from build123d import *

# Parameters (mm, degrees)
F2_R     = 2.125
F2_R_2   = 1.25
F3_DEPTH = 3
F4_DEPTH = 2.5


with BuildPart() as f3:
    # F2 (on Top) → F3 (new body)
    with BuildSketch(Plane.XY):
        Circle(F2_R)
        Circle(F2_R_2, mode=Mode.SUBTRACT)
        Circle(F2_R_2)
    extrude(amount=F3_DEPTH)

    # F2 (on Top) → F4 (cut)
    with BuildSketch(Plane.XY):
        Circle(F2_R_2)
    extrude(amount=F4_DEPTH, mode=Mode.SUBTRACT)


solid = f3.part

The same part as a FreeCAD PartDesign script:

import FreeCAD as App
import Part
import Sketcher
from FreeCAD import Vector
Q = App.Units.Quantity

doc = App.newDocument("Part")
body = doc.addObject("PartDesign::Body", "Body")

sketch1 = body.newObject("Sketcher::SketchObject", "Sketch")
sketch1.AttachmentSupport = (doc.getObject("XY_Plane"), [""])
sketch1.MapMode = "FlatFace"
sketch1.addGeometry(Part.Circle(Vector(0, 0, 0), Vector(0, 0, 1), 2.1), False)
sketch1.addConstraint(Sketcher.Constraint("Coincident", 0, 3, -1, 1))
sketch1.addConstraint(Sketcher.Constraint("Diameter", 0, Q("4.25 mm")))
pad1 = body.newObject("PartDesign::Pad", "Pad")
pad1.Profile = sketch1
pad1.Length = 3

sketch2 = body.newObject("Sketcher::SketchObject", "Sketch001")
sketch2.AttachmentSupport = (doc.getObject("XY_Plane"), [""])
sketch2.MapMode = "FlatFace"
sketch2.addGeometry(Part.Circle(Vector(0, 0, 0), Vector(0, 0, 1), 1.2), False)
sketch2.addConstraint(Sketcher.Constraint("Coincident", 0, 3, -1, 1))
sketch2.addConstraint(Sketcher.Constraint("Diameter", 0, Q("2.5 mm")))
pocket1 = body.newObject("PartDesign::Pocket", "Pocket")
pocket1.Profile = sketch2
pocket1.Length = 2.5
pocket1.Reversed = True

doc.recompute()
